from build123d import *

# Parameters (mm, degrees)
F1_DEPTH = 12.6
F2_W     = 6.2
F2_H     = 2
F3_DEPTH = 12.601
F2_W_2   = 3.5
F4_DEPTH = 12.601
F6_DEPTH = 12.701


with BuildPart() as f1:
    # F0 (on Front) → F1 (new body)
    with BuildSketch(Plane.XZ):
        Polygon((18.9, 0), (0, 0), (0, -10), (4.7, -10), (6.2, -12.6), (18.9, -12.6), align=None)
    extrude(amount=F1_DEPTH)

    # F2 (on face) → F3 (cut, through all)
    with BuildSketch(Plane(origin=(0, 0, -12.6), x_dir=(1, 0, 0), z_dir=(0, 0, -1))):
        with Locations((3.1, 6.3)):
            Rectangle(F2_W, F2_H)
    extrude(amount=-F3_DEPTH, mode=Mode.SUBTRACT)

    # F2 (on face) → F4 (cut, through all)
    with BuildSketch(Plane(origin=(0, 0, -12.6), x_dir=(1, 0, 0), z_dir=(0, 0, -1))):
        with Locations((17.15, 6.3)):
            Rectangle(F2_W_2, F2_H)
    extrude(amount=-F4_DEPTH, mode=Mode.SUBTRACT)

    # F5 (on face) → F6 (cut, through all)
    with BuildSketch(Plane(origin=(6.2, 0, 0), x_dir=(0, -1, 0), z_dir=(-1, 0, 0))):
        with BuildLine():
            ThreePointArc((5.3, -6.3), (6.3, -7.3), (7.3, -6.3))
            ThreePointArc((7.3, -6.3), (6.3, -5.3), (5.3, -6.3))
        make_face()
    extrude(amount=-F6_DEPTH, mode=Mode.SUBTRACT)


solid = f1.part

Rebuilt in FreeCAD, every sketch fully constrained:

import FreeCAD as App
import Part
import Sketcher
from FreeCAD import Vector


def add_polygon(sketch, points):
    """Adds a closed chain of lines whose ends are joined by coincident constraints."""
    first, n = sketch.GeometryCount, len(points)
    for a, b in zip(points, points[1:] + points[:1]):
        sketch.addGeometry(Part.LineSegment(App.Vector(*a, 0), App.Vector(*b, 0)), False)
    for i in range(n):
        sketch.addConstraint(Sketcher.Constraint("Coincident", first + i, 2, first + (i + 1) % n, 1))

doc = App.newDocument("Part")
body = doc.addObject("PartDesign::Body", "Body")

# Sketch on XZ plane
sketch1 = doc.addObject("Sketcher::SketchObject", "Sketch")
body.addObject(sketch1)
sketch1.AttachmentSupport = (doc.XZ_Plane, [""])
sketch1.MapMode = "FlatFace"
add_polygon(sketch1, [(18.9, 0), (0, 0), (0, -10), (4.7, -10), (6.2, -12.6), (18.9, -12.6)])  # lines 0-5
sketch1.addConstraint([
    Sketcher.Constraint("Horizontal", 0),
    Sketcher.Constraint("Vertical", 1),
    Sketcher.Constraint("Horizontal", 2),
    Sketcher.Constraint("Horizontal", 4),
    Sketcher.Constraint("Vertical", 5),
    Sketcher.Constraint("Coincident", 0, 2, -1, 1),
    Sketcher.Constraint("DistanceY", 1, 2, 1, 1, 10.0),
    Sketcher.Constraint("DistanceX", 0, 2, 0, 1, 18.9),
    Sketcher.Constraint("DistanceX", 2, 1, 2, 2, 4.7),
    Sketcher.Constraint("DistanceX", 4, 1, 4, 2, 12.7),
    Sketcher.Constraint("DistanceY", 5, 1, 5, 2, 12.6),
])
pad1 = doc.addObject("PartDesign::Pad", "Pad")
body.addObject(pad1)
pad1.Profile = sketch1
pad1.Length = 12.6

# Sketch on XY plane
sketch2 = doc.addObject("Sketcher::SketchObject", "Sketch001")
body.addObject(sketch2)
sketch2.AttachmentSupport = (doc.XY_Plane, [""])
sketch2.MapMode = "FlatFace"
sketch2.AttachmentOffset = App.Placement(Vector(0, 0, -12.6), App.Rotation())
add_polygon(sketch2, [(0, -7.3), (0, -5.3), (6.2, -5.3), (6.2, -7.3)])  # lines 0-3
sketch2.addConstraint([
    Sketcher.Constraint("Vertical", 0),
    Sketcher.Constraint("Horizontal", 1),
    Sketcher.Constraint("Vertical", 2),
    Sketcher.Constraint("Horizontal", 3),
    Sketcher.Constraint("PointOnObject", 0, 2, -2),
    Sketcher.Constraint("DistanceY", 0, 1, 0, 2, 2.0),
    Sketcher.Constraint("DistanceX", 1, 1, 1, 2, 6.2),
    Sketcher.Constraint("DistanceY", 0, 2, -1, 1, 5.3),
])
pocket1 = doc.addObject("PartDesign::Pocket", "Pocket")
body.addObject(pocket1)
pocket1.Profile = sketch2
pocket1.Type = "ThroughAll"
pocket1.Reversed = True

# Sketch on XY plane
sketch3 = doc.addObject("Sketcher::SketchObject", "Sketch002")
body.addObject(sketch3)
sketch3.AttachmentSupport = (doc.XY_Plane, [""])
sketch3.MapMode = "FlatFace"
sketch3.AttachmentOffset = App.Placement(Vector(0, 0, -12.6), App.Rotation())
add_polygon(sketch3, [(15.4, -7.3), (15.4, -5.3), (18.9, -5.3), (18.9, -7.3)])  # lines 0-3
sketch3.addConstraint([
    Sketcher.Constraint("Vertical", 0),
    Sketcher.Constraint("Horizontal", 1),
    Sketcher.Constraint("Vertical", 2),
    Sketcher.Constraint("Horizontal", 3),
    Sketcher.Constraint("DistanceY", 0, 1, 0, 2, 2.0),
    Sketcher.Constraint("DistanceX", 1, 1, 1, 2, 3.5),
    Sketcher.Constraint("DistanceX", -1, 1, 0, 2, 15.4),
    Sketcher.Constraint("DistanceY", 0, 2, -1, 1, 5.3),
])
pocket2 = doc.addObject("PartDesign::Pocket", "Pocket001")
body.addObject(pocket2)
pocket2.Profile = sketch3
pocket2.Type = "ThroughAll"
pocket2.Reversed = True

# Sketch on YZ plane
sketch4 = doc.addObject("Sketcher::SketchObject", "Sketch003")
body.addObject(sketch4)
sketch4.AttachmentSupport = (doc.YZ_Plane, [""])
sketch4.MapMode = "FlatFace"
sketch4.AttachmentOffset = App.Placement(Vector(0, 0, 6.2), App.Rotation())
sketch4.addGeometry(Part.Circle(Vector(-6.3, -6.3, 0), Vector(0, 0, 1), 1), False)
sketch4.addConstraint([
    Sketcher.Constraint("Diameter", 0, 2.0),
    Sketcher.Constraint("DistanceX", 0, 3, -1, 1, 6.3),
    Sketcher.Constraint("DistanceY", 0, 3, -1, 1, 6.3),
])
pocket3 = doc.addObject("PartDesign::Pocket", "Pocket002")
body.addObject(pocket3)
pocket3.Profile = sketch4
pocket3.Type = "ThroughAll"
pocket3.Reversed = True

doc.recompute()
